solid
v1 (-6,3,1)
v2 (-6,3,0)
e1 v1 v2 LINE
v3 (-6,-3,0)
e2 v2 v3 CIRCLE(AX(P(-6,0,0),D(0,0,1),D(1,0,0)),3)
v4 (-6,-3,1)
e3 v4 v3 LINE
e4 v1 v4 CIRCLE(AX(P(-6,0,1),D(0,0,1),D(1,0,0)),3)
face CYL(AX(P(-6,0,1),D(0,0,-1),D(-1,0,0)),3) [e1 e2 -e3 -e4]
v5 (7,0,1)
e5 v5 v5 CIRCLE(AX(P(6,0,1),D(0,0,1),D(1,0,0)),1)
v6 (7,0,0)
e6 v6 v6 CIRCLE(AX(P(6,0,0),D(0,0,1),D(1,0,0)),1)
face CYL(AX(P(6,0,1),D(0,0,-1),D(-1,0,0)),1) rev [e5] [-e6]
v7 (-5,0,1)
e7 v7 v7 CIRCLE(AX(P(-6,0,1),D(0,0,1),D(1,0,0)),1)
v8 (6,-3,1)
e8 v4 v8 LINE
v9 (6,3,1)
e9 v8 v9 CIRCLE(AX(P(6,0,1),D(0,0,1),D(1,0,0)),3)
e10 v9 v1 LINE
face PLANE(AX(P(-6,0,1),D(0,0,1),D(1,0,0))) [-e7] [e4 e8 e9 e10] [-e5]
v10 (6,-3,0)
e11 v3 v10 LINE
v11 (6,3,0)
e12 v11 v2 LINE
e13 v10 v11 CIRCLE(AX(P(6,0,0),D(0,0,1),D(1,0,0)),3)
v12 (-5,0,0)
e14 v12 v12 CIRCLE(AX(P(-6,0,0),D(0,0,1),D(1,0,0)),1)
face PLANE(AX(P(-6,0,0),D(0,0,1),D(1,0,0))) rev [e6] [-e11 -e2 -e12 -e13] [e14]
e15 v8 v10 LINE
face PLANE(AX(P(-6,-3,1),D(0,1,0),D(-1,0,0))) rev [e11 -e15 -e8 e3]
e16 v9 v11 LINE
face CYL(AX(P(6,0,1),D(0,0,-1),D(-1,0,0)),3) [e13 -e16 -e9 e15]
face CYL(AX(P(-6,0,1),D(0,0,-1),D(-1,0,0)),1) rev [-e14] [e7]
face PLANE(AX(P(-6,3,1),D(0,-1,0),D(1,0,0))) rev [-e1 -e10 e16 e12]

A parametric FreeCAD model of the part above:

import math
import FreeCAD as App
import Part
import Sketcher
from FreeCAD import Vector
Q = App.Units.Quantity

doc = App.newDocument("Part")
body = doc.addObject("PartDesign::Body", "Body")

# Sketch on XY plane
sketch1 = body.newObject("Sketcher::SketchObject", "Sketch")
sketch1.AttachmentSupport = (doc.getObject("XY_Plane"), [""])
sketch1.MapMode = "FlatFace"
sketch1.addGeometry([
    Part.LineSegment(Vector(6, 3, 0), Vector(-6, 3, 0)),  # 0
    Part.ArcOfCircle(Part.Circle(Vector(-6, 0, 0), Vector(0, 0, 1), 3), math.radians(90), math.radians(270)),  # 1
    Part.LineSegment(Vector(-6, -3, 0), Vector(6, -3, 0)),  # 2
    Part.ArcOfCircle(Part.Circle(Vector(6, 0, 0), Vector(0, 0, 1), 3), math.radians(-90), math.radians(90)),  # 3
    Part.Circle(Vector(6, 0, 0), Vector(0, 0, 1), 1),  # 4
    Part.Circle(Vector(-6, 0, 0), Vector(0, 0, 1), 1),  # 5
], False)
sketch1.addConstraint([
    Sketcher.Constraint("Tangent", 0, 2, 1, 1),
    Sketcher.Constraint("Tangent", 1, 2, 2, 1),
    Sketcher.Constraint("Tangent", 2, 2, 3, 1),
    Sketcher.Constraint("Tangent", 3, 2, 0, 1),
    Sketcher.Constraint("Horizontal", 0),
    Sketcher.Constraint("Horizontal", 2),
    Sketcher.Constraint("Coincident", 4, 3, 3, 3),
    Sketcher.Constraint("Coincident", 5, 3, 1, 3),
    Sketcher.Constraint("Equal", 4, 5),
    Sketcher.Constraint("Symmetric", 1, 3, 3, 3, -1, 1),
    Sketcher.Constraint("Diameter", 4, Q("2 mm")),
    Sketcher.Constraint("Radius", 1, Q("3 mm")),
    Sketcher.Constraint("DistanceX", 0, 2, 0, 1, Q("12 mm")),
])
pad1 = body.newObject("PartDesign::Pad", "Pad")
pad1.Profile = sketch1
pad1.Length = 1

doc.recompute()
